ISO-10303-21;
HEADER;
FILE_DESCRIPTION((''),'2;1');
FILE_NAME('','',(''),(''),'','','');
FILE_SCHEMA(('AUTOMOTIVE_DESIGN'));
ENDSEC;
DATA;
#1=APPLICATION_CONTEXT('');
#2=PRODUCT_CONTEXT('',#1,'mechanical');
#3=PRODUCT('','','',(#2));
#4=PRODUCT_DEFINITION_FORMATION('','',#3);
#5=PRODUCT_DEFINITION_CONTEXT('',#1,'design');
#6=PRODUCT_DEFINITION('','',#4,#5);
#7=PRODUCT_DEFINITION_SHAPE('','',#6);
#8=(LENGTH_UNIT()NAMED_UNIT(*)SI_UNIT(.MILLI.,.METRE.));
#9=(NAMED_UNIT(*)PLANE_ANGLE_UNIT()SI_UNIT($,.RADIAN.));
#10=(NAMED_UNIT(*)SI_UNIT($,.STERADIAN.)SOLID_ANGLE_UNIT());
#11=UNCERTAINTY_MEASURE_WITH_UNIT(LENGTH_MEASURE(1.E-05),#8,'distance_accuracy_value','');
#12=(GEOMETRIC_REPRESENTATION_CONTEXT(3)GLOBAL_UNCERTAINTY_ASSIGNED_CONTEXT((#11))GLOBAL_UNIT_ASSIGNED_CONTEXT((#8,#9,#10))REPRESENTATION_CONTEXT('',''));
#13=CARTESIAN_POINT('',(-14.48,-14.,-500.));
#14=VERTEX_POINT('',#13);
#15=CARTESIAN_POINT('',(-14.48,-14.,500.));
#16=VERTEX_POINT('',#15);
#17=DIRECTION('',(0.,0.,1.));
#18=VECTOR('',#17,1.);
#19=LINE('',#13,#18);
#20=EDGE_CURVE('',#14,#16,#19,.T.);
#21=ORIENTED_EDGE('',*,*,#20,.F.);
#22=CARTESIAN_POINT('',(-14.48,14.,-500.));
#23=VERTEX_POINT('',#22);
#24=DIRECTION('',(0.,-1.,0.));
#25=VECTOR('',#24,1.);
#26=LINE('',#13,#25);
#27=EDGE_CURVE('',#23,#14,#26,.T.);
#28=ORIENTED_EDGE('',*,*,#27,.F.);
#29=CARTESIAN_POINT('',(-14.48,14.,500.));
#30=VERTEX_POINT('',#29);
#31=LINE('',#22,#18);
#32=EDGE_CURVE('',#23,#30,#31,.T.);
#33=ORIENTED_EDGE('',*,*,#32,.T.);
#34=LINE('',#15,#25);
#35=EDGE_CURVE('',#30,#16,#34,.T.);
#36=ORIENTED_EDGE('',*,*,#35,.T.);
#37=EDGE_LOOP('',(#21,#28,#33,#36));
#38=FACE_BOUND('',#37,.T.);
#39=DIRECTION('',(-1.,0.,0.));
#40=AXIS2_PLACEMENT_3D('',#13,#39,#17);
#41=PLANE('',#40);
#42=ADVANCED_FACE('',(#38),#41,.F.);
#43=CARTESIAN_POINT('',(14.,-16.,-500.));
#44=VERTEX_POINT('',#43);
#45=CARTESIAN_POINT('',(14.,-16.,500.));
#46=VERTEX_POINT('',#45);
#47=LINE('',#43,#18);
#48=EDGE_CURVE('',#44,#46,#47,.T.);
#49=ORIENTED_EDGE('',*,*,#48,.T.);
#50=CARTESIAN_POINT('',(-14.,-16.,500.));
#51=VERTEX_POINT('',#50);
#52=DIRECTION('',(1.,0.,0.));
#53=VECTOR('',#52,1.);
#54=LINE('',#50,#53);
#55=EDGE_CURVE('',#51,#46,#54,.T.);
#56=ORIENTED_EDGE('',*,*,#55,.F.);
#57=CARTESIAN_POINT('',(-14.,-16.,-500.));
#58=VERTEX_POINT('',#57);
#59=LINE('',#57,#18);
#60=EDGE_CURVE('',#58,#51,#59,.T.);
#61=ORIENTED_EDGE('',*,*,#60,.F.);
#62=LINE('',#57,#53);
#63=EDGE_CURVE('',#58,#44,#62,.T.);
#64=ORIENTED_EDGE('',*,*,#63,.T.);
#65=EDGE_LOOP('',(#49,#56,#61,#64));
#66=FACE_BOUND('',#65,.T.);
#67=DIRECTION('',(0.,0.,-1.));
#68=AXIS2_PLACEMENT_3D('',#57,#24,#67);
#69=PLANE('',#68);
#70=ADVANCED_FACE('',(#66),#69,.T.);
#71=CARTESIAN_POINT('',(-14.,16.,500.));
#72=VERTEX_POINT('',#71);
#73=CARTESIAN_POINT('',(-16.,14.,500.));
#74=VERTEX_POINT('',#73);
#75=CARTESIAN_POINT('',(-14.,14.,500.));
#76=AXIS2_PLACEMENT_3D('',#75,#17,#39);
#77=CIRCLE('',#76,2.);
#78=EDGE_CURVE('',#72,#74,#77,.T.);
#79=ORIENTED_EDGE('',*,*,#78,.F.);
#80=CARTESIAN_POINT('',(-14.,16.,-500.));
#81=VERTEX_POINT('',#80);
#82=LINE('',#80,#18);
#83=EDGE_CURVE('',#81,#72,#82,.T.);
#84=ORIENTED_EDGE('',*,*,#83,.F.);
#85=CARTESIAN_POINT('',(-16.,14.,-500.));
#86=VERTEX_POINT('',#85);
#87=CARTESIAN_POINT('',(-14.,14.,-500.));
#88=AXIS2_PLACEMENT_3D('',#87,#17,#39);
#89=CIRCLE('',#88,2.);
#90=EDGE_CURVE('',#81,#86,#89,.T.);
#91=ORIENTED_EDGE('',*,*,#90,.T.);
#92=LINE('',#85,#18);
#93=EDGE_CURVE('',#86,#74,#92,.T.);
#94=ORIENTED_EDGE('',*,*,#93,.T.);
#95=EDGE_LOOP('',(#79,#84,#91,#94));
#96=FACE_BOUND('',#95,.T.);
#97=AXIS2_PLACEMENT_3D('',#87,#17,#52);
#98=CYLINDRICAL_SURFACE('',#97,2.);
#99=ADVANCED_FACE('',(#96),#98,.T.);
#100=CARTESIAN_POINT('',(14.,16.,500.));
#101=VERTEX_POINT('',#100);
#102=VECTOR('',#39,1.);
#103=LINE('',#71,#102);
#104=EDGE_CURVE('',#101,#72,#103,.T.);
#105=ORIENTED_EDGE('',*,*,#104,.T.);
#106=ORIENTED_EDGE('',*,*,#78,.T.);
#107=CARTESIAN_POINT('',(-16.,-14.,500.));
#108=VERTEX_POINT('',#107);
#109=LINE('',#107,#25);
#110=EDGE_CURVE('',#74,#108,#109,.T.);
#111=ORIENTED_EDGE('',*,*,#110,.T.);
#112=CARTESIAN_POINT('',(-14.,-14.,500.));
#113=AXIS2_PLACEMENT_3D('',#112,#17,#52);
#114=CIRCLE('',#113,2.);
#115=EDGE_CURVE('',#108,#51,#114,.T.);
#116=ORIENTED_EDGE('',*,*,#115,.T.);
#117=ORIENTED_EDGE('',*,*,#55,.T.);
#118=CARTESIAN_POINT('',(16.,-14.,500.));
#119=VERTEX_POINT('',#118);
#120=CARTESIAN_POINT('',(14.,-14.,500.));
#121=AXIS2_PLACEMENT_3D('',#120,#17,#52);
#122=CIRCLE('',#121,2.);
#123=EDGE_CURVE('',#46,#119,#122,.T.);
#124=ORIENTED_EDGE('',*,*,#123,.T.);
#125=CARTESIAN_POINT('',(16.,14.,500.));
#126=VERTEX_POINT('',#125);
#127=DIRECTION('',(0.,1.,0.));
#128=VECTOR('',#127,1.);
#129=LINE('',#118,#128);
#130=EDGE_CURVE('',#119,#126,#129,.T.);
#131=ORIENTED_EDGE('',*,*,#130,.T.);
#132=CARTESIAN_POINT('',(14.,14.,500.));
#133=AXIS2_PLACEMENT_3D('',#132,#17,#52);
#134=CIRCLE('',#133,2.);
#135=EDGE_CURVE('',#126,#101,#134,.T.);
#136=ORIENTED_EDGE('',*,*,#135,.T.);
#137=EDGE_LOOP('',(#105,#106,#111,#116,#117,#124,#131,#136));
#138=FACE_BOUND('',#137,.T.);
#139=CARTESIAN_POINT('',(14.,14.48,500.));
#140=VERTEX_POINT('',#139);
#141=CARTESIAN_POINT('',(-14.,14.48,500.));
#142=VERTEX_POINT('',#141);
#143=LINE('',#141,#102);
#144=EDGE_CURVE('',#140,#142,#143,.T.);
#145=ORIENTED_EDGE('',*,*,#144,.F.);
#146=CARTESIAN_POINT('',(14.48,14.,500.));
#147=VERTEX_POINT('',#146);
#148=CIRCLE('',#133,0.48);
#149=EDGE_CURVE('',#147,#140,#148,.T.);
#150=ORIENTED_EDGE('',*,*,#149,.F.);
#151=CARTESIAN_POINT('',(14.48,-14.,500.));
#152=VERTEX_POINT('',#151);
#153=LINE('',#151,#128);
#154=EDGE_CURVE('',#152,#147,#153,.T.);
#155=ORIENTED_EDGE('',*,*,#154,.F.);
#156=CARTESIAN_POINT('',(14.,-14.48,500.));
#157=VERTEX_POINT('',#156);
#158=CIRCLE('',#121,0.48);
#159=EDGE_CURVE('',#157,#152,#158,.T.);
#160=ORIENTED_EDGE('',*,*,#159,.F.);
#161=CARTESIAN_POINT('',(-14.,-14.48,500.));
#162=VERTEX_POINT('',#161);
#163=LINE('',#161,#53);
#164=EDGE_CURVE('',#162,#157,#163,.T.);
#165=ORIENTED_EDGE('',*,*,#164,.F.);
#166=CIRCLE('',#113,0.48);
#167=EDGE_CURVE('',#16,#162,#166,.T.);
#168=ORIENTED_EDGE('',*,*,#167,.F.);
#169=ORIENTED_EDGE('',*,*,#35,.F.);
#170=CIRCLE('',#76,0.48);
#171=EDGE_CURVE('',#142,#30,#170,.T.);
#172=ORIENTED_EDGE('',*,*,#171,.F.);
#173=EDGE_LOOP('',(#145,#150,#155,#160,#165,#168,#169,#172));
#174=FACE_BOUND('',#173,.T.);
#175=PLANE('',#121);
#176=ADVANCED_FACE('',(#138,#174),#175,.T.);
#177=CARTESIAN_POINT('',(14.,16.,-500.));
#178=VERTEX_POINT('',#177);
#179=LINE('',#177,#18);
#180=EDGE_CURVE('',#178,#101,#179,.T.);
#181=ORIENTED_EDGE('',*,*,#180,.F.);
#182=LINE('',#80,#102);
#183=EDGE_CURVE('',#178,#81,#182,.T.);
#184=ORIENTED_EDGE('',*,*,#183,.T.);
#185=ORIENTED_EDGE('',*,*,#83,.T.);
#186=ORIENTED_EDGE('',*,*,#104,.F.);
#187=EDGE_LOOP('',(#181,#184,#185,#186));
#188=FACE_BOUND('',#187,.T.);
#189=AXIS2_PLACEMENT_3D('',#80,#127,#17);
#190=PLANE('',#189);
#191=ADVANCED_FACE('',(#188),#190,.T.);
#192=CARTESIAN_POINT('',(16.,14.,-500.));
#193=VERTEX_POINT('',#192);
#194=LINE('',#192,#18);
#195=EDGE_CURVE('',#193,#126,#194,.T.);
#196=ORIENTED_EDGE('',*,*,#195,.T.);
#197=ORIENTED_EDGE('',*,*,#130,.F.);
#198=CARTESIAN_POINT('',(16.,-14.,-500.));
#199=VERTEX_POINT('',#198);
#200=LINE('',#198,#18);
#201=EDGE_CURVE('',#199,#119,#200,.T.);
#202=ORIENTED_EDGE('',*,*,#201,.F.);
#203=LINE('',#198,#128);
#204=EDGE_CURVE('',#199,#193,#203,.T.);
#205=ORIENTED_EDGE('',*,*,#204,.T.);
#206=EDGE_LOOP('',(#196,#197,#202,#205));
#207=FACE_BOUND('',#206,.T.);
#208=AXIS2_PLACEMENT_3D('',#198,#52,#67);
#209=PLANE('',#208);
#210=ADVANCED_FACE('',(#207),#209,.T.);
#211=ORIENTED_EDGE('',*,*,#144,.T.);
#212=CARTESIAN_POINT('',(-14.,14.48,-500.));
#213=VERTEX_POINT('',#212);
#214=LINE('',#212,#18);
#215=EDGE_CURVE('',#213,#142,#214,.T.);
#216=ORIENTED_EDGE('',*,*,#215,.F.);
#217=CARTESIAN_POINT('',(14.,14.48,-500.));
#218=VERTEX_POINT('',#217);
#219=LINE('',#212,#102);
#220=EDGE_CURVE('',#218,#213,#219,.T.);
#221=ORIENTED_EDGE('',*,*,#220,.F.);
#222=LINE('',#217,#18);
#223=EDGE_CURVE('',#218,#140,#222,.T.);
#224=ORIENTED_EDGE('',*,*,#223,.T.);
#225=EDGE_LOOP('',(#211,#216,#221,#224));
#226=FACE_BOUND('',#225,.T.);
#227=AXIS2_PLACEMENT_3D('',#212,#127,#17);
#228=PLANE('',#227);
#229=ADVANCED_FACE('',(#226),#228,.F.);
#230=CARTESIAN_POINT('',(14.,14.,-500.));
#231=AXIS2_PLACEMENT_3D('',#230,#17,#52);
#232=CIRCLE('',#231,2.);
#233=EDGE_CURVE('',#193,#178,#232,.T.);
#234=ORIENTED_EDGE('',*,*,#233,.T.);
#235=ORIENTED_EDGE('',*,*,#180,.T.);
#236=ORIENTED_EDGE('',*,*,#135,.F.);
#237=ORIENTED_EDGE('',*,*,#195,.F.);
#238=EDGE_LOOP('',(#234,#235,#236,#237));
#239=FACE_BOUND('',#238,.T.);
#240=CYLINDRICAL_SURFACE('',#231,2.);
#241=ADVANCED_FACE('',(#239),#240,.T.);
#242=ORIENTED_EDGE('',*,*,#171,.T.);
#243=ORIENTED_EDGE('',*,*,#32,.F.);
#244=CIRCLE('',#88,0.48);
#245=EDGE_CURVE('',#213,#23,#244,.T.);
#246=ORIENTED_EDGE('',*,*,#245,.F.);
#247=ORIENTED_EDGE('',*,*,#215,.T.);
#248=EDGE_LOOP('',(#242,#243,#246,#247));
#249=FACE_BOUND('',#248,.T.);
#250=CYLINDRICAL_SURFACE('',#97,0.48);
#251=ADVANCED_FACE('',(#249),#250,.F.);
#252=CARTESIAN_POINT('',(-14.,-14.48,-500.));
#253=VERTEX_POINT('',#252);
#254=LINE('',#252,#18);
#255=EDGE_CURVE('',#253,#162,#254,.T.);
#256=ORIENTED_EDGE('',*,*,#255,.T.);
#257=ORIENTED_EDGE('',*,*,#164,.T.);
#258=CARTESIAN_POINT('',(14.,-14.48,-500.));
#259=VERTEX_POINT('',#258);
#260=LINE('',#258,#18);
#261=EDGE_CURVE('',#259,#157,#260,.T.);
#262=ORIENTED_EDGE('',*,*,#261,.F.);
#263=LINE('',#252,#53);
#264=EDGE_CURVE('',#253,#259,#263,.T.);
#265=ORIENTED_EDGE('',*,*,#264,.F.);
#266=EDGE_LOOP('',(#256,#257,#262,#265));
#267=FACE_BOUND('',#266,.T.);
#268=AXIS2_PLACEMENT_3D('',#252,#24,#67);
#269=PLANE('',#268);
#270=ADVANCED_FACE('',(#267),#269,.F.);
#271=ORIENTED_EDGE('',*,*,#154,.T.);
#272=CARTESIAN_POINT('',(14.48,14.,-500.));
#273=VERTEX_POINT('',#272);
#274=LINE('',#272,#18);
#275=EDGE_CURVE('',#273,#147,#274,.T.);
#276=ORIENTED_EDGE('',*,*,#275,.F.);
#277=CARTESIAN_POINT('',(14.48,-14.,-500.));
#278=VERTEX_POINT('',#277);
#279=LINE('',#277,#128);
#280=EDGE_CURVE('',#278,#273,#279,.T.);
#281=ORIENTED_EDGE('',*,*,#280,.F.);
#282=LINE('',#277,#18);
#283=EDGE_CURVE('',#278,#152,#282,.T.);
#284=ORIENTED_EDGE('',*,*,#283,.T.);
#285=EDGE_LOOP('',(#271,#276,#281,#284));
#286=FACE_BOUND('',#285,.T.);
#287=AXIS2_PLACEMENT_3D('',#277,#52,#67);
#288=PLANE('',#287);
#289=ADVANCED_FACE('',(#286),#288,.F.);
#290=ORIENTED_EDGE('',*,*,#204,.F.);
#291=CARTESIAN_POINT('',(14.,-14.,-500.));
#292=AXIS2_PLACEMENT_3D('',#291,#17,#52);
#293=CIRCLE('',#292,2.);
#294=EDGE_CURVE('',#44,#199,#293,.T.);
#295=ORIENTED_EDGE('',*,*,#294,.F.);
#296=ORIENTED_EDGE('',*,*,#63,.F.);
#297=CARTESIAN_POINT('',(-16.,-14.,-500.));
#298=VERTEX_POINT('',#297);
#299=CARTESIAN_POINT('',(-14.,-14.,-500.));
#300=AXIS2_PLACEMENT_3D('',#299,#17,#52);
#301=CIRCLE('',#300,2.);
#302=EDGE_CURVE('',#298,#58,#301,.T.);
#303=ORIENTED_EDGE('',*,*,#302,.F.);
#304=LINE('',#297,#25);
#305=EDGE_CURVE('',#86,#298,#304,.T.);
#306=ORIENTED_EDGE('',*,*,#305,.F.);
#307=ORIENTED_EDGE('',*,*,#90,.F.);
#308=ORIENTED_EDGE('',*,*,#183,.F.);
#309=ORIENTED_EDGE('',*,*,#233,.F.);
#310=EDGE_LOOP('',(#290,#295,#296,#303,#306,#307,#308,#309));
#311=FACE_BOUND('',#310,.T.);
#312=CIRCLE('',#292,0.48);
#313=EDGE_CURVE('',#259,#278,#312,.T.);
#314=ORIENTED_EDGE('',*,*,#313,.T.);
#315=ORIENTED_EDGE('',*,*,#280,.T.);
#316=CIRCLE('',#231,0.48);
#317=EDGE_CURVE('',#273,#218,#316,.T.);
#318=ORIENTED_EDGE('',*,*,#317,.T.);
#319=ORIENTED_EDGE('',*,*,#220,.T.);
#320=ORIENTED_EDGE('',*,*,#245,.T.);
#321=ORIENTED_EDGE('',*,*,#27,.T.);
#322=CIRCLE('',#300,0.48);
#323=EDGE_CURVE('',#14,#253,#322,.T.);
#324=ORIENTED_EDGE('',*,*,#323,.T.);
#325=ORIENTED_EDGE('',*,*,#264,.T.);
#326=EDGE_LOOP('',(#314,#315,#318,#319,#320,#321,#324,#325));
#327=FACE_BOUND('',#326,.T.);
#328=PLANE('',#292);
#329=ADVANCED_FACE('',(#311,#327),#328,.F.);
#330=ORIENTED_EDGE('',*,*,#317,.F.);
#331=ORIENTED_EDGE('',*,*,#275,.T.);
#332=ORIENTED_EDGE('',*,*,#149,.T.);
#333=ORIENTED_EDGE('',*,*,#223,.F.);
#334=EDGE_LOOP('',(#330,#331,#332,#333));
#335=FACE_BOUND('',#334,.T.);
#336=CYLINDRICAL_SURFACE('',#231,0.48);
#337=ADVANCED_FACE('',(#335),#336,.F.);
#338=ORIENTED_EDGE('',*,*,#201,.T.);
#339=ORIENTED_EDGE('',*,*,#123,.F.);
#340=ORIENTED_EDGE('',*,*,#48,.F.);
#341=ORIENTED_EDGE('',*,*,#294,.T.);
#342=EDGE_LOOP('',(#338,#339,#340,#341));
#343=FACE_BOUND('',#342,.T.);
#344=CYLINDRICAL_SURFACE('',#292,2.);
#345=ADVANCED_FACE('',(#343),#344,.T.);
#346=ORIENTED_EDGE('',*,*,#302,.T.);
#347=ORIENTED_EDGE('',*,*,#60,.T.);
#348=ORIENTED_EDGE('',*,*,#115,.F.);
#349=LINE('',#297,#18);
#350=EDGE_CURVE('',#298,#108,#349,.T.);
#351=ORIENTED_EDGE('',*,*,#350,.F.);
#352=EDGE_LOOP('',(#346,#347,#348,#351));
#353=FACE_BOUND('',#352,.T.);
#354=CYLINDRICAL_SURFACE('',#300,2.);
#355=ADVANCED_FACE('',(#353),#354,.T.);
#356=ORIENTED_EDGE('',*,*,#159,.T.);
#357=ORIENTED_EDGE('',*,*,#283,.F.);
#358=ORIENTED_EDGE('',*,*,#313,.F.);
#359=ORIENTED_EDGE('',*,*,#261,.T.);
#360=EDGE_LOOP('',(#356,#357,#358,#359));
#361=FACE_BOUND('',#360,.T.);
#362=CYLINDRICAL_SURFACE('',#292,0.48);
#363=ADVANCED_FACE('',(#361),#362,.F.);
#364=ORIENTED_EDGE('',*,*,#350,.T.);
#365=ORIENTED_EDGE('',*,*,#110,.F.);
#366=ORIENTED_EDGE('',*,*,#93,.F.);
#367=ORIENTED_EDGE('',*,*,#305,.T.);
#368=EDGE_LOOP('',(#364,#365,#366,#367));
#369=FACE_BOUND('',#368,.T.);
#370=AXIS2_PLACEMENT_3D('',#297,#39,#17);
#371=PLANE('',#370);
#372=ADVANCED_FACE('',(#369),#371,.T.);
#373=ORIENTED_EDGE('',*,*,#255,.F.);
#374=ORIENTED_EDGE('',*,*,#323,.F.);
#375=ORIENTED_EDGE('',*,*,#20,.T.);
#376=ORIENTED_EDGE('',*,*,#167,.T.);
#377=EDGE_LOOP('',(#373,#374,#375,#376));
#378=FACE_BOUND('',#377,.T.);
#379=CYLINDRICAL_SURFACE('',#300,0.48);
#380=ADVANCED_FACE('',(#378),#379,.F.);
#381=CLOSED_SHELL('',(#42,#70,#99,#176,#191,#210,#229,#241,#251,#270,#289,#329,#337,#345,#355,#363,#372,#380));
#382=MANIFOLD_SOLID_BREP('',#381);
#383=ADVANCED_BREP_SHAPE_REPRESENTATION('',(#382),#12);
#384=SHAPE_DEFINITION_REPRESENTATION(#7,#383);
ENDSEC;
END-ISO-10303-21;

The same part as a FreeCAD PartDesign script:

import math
import FreeCAD as App
import Part
import Sketcher
from FreeCAD import Vector
Q = App.Units.Quantity

doc = App.newDocument("Part")
body = doc.addObject("PartDesign::Body", "Body")

# Sketch on XY plane
sketch1 = body.newObject("Sketcher::SketchObject", "Sketch")
sketch1.AttachmentSupport = (doc.getObject("XY_Plane"), [""])
sketch1.MapMode = "FlatFace"
sketch1.addGeometry([
    Part.LineSegment(Vector(-14, -16, 0), Vector(14, -16, 0)),  # 0
    Part.ArcOfCircle(Part.Circle(Vector(14, -14, 0), Vector(0, 0, 1), 2), math.radians(-90), math.radians(0)),  # 1
    Part.LineSegment(Vector(16, -14, 0), Vector(16, 14, 0)),  # 2
    Part.ArcOfCircle(Part.Circle(Vector(14, 14, 0), Vector(0, 0, 1), 2), math.radians(0), math.radians(90)),  # 3
    Part.LineSegment(Vector(14, 16, 0), Vector(-14, 16, 0)),  # 4
    Part.ArcOfCircle(Part.Circle(Vector(-14, 14, 0), Vector(0, 0, 1), 2), math.radians(90), math.radians(180)),  # 5
    Part.LineSegment(Vector(-16, 14, 0), Vector(-16, -14, 0)),  # 6
    Part.ArcOfCircle(Part.Circle(Vector(-14, -14, 0), Vector(0, 0, 1), 2), math.radians(-180), math.radians(-90)),  # 7
    Part.ArcOfCircle(Part.Circle(Vector(-14, 14, 0), Vector(0, 0, 1), 0.48), math.radians(90), math.radians(180)),  # 8
    Part.LineSegment(Vector(-14, 14.48, 0), Vector(14, 14.48, 0)),  # 9
    Part.ArcOfCircle(Part.Circle(Vector(14, 14, 0), Vector(0, 0, 1), 0.48), math.radians(0), math.radians(90)),  # 10
    Part.LineSegment(Vector(14.48, 14, 0), Vector(14.48, -14, 0)),  # 11
    Part.ArcOfCircle(Part.Circle(Vector(14, -14, 0), Vector(0, 0, 1), 0.48), math.radians(-90), math.radians(0)),  # 12
    Part.LineSegment(Vector(14, -14.48, 0), Vector(-14, -14.48, 0)),  # 13
    Part.ArcOfCircle(Part.Circle(Vector(-14, -14, 0), Vector(0, 0, 1), 0.48), math.radians(180), math.radians(270)),  # 14
    Part.LineSegment(Vector(-14.48, -14, 0), Vector(-14.48, 14, 0)),  # 15
], False)
sketch1.addConstraint([
    Sketcher.Constraint("Tangent", 0, 2, 1, 1),
    Sketcher.Constraint("Tangent", 1, 2, 2, 1),
    Sketcher.Constraint("Tangent", 2, 2, 3, 1),
    Sketcher.Constraint("Tangent", 3, 2, 4, 1),
    Sketcher.Constraint("Tangent", 4, 2, 5, 1),
    Sketcher.Constraint("Tangent", 5, 2, 6, 1),
    Sketcher.Constraint("Tangent", 6, 2, 7, 1),
    Sketcher.Constraint("Tangent", 7, 2, 0, 1),
    Sketcher.Constraint("Tangent", 8, 1, 9, 1),
    Sketcher.Constraint("Tangent", 9, 2, 10, 2),
    Sketcher.Constraint("Tangent", 10, 1, 11, 1),
    Sketcher.Constraint("Tangent", 11, 2, 12, 2),
    Sketcher.Constraint("Tangent", 12, 1, 13, 1),
    Sketcher.Constraint("Tangent", 13, 2, 14, 2),
    Sketcher.Constraint("Tangent", 14, 1, 15, 1),
    Sketcher.Constraint("Tangent", 15, 2, 8, 2),
    Sketcher.Constraint("Horizontal", 0),
    Sketcher.Constraint("Vertical", 2),
    Sketcher.Constraint("Horizontal", 4),
    Sketcher.Constraint("Vertical", 6),
    Sketcher.Constraint("Horizontal", 9),
    Sketcher.Constraint("Vertical", 11),
    Sketcher.Constraint("Horizontal", 13),
    Sketcher.Constraint("Vertical", 15),
    Sketcher.Constraint("Coincident", 8, 3, 5, 3),
    Sketcher.Constraint("Coincident", 10, 3, 3, 3),
    Sketcher.Constraint("Coincident", 12, 3, 1, 3),
    Sketcher.Constraint("Equal", 1, 3),
    Sketcher.Constraint("Equal", 3, 5),
    Sketcher.Constraint("Equal", 5, 7),
    Sketcher.Constraint("Equal", 12, 14),
    Sketcher.Constraint("Symmetric", 1, 3, 5, 3, -1, 1),
    Sketcher.Constraint("Equal", 13, 2),
    Sketcher.Constraint("Radius", 1, Q("2 mm")),
    Sketcher.Constraint("DistanceX", 0, 1, 0, 2, Q("28 mm")),
    Sketcher.Constraint("Radius", 8, Q("0.48 mm")),
])
pad1 = body.newObject("PartDesign::Pad", "Pad")
pad1.Profile = sketch1
pad1.Type = "TwoLengths"
pad1.Length = 500
pad1.Length2 = 500

doc.recompute()
